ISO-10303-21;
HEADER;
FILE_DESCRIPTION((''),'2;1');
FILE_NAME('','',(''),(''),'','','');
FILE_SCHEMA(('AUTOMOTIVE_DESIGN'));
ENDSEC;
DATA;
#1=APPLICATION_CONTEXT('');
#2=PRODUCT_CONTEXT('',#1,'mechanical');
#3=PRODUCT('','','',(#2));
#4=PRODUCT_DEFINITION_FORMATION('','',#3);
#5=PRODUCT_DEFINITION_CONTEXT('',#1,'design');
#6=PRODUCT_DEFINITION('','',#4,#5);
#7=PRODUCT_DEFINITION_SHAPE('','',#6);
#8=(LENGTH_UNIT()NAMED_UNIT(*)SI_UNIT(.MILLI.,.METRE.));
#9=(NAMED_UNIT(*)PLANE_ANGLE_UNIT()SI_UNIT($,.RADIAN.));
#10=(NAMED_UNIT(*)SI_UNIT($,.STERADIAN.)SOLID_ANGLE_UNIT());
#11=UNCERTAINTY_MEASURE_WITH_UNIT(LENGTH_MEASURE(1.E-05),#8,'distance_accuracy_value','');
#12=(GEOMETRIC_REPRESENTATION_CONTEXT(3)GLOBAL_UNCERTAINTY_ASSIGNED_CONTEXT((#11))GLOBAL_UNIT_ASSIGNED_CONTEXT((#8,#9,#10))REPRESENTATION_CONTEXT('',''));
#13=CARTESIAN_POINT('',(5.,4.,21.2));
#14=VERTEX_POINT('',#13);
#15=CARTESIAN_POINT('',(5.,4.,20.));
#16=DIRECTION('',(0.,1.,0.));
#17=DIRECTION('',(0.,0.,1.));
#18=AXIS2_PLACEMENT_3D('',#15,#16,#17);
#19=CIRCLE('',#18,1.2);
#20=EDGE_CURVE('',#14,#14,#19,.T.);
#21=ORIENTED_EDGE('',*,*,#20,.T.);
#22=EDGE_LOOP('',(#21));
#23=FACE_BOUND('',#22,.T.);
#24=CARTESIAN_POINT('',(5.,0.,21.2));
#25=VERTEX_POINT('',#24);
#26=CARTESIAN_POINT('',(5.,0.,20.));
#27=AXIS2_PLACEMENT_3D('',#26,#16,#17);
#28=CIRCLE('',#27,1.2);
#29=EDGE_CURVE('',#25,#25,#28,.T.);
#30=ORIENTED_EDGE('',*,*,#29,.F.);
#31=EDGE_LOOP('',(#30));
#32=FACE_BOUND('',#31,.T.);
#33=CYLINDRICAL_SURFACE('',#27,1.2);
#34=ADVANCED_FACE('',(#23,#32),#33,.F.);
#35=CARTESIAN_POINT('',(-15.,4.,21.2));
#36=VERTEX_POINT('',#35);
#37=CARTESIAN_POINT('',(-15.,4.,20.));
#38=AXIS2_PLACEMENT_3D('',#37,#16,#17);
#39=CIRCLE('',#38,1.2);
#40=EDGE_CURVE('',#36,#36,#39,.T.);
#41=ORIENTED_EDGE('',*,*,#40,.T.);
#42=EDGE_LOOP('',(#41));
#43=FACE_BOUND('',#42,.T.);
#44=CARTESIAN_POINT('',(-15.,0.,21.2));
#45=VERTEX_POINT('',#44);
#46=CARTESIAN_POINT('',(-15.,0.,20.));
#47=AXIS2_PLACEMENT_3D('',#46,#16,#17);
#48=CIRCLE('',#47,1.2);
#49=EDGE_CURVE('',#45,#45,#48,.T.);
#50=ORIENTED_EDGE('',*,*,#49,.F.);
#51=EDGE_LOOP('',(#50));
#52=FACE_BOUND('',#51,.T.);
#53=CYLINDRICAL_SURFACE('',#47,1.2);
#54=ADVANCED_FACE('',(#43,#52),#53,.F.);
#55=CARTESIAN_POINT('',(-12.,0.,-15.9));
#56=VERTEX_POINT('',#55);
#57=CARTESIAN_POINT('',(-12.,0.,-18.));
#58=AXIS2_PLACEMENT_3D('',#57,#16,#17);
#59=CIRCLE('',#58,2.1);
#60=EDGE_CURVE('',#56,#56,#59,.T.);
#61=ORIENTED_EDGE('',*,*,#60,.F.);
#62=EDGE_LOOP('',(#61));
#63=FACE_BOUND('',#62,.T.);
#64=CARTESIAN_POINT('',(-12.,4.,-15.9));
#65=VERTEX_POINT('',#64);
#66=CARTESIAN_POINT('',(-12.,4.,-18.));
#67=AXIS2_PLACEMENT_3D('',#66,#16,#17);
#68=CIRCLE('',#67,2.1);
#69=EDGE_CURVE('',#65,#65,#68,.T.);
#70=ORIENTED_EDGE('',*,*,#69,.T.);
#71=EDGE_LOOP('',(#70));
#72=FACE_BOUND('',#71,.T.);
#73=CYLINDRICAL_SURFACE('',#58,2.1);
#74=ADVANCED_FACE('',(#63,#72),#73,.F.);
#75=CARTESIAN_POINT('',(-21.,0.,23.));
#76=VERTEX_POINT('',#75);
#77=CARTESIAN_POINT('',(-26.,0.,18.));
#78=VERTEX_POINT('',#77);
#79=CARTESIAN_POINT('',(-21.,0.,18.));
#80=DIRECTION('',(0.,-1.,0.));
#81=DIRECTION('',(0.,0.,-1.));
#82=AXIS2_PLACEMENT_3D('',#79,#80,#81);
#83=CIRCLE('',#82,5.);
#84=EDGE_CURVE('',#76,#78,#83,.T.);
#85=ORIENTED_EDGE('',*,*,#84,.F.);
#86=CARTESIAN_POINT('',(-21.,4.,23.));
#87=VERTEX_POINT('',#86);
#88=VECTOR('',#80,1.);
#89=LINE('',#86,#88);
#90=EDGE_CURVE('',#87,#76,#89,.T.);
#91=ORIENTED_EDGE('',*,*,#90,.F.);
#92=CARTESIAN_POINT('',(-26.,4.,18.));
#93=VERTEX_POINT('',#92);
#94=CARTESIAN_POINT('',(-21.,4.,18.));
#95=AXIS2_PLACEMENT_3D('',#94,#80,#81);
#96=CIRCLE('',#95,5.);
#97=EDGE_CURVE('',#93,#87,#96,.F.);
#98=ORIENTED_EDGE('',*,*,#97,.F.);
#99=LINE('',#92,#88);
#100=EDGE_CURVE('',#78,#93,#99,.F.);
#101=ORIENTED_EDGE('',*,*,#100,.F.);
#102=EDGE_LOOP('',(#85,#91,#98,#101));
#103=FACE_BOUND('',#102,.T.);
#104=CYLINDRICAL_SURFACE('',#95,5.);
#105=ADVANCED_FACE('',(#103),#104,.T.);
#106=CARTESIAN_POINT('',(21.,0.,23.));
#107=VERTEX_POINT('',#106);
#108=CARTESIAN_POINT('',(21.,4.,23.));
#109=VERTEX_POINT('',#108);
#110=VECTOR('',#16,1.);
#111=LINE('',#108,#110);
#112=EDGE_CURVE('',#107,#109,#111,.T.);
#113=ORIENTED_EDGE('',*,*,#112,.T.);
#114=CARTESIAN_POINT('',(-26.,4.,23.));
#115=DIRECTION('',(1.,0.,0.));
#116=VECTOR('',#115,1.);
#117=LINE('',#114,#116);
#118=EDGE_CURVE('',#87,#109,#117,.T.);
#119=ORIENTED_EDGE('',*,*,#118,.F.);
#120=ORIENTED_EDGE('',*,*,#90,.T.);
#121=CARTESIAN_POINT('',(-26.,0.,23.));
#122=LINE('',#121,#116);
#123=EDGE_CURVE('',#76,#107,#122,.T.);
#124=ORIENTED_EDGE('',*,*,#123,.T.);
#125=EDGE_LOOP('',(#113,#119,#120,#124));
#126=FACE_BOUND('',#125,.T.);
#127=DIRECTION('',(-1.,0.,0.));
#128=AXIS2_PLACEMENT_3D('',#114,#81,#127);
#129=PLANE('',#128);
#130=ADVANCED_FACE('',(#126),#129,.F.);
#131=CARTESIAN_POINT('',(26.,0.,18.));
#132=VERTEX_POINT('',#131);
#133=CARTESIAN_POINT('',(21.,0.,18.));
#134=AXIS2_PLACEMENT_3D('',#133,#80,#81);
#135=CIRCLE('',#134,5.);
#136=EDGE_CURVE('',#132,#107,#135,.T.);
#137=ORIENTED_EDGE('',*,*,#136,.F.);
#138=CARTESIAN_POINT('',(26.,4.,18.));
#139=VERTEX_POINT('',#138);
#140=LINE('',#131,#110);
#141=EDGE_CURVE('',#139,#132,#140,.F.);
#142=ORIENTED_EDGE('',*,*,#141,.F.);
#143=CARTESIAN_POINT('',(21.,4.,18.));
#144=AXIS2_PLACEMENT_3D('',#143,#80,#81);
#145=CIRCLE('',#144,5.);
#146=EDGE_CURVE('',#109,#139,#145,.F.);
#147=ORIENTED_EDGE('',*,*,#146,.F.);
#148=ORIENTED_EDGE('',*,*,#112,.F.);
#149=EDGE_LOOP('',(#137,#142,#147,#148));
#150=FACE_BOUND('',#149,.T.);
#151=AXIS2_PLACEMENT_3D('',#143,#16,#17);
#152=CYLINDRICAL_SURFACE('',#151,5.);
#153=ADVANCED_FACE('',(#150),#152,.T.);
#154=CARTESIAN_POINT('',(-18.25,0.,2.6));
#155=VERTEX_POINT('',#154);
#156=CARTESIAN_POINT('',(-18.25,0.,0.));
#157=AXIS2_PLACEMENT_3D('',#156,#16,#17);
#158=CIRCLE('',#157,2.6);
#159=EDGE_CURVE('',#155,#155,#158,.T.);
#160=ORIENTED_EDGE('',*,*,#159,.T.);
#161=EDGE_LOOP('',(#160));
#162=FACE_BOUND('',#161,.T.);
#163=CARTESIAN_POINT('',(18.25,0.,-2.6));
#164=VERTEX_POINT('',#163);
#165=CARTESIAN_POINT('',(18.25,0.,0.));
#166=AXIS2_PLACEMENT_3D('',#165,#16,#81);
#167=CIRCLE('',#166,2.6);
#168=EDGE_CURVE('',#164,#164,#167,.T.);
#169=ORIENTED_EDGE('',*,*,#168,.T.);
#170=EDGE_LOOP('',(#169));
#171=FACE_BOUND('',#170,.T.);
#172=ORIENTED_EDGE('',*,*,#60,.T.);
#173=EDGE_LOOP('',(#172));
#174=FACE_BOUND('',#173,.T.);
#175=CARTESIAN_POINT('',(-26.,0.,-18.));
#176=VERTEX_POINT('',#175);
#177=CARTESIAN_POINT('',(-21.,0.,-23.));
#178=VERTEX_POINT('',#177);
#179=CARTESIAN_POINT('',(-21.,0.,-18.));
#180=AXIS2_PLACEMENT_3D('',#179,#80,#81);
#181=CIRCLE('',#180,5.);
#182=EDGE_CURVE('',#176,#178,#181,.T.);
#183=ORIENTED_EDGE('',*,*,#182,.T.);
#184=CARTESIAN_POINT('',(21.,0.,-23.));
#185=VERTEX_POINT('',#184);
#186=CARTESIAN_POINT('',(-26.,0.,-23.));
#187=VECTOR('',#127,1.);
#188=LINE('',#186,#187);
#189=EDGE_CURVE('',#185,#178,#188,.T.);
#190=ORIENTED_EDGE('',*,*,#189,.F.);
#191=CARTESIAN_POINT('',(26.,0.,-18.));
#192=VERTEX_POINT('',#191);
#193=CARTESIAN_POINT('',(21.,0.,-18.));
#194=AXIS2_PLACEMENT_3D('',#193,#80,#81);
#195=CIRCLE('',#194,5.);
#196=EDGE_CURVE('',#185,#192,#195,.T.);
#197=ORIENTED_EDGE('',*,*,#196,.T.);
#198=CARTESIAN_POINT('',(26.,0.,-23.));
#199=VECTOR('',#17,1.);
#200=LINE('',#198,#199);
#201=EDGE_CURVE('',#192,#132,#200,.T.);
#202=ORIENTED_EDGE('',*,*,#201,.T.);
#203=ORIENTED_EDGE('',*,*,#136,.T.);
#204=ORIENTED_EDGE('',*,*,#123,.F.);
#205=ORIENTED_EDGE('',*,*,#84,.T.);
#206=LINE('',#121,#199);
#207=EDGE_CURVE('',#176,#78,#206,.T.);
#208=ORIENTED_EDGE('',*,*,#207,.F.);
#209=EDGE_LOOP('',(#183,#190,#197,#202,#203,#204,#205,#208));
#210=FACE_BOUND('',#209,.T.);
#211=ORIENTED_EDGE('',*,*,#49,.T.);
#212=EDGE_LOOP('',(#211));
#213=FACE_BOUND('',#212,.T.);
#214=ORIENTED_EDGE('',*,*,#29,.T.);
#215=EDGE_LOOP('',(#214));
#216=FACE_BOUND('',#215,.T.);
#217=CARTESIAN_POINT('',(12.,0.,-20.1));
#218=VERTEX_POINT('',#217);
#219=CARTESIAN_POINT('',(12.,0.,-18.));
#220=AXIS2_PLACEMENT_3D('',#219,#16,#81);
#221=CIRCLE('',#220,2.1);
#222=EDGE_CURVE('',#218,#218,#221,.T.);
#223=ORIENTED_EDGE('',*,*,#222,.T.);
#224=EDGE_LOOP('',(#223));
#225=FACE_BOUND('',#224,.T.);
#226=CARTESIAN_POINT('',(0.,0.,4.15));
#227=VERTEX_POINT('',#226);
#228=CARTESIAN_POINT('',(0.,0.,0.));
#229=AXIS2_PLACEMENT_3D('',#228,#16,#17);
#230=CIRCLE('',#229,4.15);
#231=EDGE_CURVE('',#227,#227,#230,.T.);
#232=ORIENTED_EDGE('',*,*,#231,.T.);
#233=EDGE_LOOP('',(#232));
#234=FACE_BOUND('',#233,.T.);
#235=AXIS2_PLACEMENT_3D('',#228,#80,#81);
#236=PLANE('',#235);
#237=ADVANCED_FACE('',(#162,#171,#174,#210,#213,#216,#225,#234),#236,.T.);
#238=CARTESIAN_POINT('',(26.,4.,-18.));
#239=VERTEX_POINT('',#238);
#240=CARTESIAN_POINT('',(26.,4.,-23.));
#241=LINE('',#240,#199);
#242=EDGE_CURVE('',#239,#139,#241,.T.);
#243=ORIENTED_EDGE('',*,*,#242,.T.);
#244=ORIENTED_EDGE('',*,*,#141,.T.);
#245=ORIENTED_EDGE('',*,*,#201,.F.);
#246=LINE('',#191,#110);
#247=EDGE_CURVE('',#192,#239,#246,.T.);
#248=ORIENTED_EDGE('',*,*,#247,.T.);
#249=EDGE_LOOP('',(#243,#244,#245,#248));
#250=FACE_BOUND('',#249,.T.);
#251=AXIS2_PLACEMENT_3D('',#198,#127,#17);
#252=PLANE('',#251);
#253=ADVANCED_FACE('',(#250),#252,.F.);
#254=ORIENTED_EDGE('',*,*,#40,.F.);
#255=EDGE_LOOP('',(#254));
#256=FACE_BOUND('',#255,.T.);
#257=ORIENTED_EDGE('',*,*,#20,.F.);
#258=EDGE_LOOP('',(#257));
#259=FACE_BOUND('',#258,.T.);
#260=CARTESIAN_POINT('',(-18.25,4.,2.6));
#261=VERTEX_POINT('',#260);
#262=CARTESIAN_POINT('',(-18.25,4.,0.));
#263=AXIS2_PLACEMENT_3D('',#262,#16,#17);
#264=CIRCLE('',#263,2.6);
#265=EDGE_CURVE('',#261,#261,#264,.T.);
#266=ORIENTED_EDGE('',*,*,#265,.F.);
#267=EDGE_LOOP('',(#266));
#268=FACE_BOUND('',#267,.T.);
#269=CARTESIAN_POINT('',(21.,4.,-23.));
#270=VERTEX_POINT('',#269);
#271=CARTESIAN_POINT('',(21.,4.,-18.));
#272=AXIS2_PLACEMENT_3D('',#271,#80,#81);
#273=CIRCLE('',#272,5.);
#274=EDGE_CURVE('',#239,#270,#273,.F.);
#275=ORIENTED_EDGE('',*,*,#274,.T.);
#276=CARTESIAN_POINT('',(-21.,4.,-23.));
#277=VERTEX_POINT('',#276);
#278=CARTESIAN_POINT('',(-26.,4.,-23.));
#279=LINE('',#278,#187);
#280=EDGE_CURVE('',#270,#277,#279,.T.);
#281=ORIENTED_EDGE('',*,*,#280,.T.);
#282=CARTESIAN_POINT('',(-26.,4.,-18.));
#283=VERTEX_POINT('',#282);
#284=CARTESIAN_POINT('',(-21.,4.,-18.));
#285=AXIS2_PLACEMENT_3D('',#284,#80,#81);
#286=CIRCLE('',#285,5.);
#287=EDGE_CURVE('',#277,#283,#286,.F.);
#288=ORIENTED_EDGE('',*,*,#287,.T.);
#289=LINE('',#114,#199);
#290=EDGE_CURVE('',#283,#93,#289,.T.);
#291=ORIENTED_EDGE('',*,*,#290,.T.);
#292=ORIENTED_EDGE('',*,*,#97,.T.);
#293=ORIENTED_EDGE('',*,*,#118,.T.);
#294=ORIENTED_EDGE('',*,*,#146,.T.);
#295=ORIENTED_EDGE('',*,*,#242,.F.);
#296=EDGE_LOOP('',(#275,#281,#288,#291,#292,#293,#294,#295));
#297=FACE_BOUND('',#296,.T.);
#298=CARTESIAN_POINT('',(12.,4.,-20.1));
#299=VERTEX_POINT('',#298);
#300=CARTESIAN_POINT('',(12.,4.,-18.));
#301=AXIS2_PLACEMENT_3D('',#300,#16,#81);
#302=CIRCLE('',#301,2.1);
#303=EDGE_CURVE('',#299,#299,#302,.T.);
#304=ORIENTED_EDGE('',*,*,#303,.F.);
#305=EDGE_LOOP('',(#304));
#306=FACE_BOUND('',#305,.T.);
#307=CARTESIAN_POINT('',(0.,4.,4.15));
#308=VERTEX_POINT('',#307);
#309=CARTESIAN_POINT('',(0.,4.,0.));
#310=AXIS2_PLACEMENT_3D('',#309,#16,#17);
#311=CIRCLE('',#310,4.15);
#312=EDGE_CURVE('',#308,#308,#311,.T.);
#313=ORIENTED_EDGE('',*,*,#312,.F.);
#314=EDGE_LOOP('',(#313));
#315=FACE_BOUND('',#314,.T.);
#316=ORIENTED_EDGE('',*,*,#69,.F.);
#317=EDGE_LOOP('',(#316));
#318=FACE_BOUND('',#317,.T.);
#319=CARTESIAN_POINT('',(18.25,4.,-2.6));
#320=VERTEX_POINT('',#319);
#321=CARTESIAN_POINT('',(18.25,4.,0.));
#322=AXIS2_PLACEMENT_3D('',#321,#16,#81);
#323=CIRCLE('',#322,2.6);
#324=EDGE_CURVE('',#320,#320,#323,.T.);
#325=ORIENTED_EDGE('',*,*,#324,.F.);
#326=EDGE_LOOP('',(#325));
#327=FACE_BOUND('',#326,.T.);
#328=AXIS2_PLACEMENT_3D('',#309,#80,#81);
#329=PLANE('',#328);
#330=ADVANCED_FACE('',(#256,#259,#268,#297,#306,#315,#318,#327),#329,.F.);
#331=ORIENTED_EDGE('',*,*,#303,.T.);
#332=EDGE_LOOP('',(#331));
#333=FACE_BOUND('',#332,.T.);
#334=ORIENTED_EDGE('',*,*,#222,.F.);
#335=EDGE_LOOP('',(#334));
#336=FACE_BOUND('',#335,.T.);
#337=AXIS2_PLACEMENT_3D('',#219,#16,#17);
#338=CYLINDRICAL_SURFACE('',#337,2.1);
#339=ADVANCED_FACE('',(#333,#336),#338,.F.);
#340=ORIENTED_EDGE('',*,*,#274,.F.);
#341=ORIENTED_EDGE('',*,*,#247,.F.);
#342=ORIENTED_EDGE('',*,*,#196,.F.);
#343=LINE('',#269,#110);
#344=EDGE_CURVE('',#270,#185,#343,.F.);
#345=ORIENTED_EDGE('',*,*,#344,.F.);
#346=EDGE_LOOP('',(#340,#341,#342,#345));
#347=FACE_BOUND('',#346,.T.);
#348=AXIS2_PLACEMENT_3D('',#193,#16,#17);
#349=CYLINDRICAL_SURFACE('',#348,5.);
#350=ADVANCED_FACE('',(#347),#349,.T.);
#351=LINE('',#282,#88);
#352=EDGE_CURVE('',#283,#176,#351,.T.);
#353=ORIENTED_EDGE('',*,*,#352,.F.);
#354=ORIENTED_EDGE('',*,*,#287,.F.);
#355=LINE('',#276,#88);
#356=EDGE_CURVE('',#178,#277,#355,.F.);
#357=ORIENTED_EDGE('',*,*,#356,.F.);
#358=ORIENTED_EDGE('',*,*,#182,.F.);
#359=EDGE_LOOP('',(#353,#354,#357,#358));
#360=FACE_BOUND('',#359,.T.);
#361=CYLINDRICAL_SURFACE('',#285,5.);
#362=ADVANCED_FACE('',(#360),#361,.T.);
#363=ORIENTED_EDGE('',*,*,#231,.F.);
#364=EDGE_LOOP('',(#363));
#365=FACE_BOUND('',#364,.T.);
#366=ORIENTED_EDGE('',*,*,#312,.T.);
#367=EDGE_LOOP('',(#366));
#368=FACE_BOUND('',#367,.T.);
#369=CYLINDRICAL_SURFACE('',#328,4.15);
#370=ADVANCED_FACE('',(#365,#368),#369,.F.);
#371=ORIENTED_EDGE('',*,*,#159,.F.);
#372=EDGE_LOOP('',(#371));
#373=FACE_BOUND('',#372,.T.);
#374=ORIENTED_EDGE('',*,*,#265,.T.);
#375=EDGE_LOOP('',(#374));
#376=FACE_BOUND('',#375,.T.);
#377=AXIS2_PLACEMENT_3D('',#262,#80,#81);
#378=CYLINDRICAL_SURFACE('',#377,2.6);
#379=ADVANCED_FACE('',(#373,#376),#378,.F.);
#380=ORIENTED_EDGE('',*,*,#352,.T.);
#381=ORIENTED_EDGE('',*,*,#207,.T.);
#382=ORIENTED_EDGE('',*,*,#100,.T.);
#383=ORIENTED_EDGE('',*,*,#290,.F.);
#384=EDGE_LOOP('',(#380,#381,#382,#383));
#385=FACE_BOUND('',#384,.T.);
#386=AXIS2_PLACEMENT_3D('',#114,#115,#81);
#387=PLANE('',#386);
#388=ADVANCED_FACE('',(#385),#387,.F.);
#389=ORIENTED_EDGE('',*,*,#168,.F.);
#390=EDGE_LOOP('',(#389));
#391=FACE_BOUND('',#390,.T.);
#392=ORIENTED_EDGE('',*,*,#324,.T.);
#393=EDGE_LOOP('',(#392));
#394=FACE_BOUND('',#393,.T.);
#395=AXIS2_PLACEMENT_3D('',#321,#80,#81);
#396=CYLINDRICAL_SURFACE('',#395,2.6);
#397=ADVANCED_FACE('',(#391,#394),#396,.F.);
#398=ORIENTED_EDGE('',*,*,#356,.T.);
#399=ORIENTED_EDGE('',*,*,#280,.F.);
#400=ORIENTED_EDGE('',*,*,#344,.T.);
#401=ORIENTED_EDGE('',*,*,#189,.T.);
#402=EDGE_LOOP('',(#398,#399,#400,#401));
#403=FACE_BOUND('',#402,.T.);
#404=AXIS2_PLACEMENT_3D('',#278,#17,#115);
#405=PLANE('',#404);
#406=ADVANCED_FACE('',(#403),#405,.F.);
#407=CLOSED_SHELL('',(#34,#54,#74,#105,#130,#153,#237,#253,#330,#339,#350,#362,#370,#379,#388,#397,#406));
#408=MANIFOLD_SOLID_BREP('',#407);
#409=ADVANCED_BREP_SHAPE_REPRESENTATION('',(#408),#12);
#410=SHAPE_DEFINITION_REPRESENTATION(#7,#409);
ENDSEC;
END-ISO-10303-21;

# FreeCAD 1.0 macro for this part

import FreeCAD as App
import Part
import Sketcher

V = App.Vector
Q = App.Units.Quantity


def edges_at(feature, points):
    """Names of the edges that pass closest to the given points."""
    edges = feature.Shape.Edges
    near = lambda p: min(range(len(edges)), key=lambda i: edges[i].distToShape(Part.Vertex(*p))[0])
    return sorted({f"Edge{near(p) + 1}" for p in points})


def add_polygon(sketch, points):
    """Adds a closed chain of lines whose ends are joined by coincident constraints."""
    first, n = sketch.GeometryCount, len(points)
    for a, b in zip(points, points[1:] + points[:1]):
        sketch.addGeometry(Part.LineSegment(App.Vector(*a, 0), App.Vector(*b, 0)), False)
    for i in range(n):
        sketch.addConstraint(Sketcher.Constraint("Coincident", first + i, 2, first + (i + 1) % n, 1))

doc = App.newDocument("Part")
body = doc.addObject("PartDesign::Body", "Body")

sketch1 = body.newObject("Sketcher::SketchObject", "Sketch")
sketch1.AttachmentSupport = (doc.getObject("XZ_Plane"), [""])
sketch1.MapMode = "FlatFace"
add_polygon(sketch1, [(-26, -23), (-26, 23), (26, 23), (26, -23)])
sketch1.addGeometry(Part.Circle(V(-18.25, 0, 0), V(0, 0, 1), 2.6), False)
sketch1.addGeometry(Part.Circle(V(0, 0, 0), V(0, 0, 1), 4.15), False)
sketch1.addGeometry(Part.Circle(V(18.25, 0, 0), V(0, 0, 1), 2.6), False)
sketch1.addConstraint([
    Sketcher.Constraint("Vertical", 0),
    Sketcher.Constraint("Horizontal", 1),
    Sketcher.Constraint("Vertical", 2),
    Sketcher.Constraint("Horizontal", 3),
    Sketcher.Constraint("Coincident", 5, 3, -1, 1),
    Sketcher.Constraint("Equal", 4, 6),
    Sketcher.Constraint("Symmetric", 4, 3, 6, 3, -1, 1),
    Sketcher.Constraint("Symmetric", 0, 2, 2, 2, -1, 1),
    Sketcher.Constraint("PointOnObject", 4, 3, -1),
    Sketcher.Constraint("Diameter", 4, Q("5.2 mm")),
    Sketcher.Constraint("Diameter", 5, Q("8.3 mm")),
    Sketcher.Constraint("DistanceX", 1, 1, 1, 2, Q("52 mm")),
    Sketcher.Constraint("DistanceY", 0, 1, 0, 2, Q("46 mm")),
    Sketcher.Constraint("DistanceX", 4, 3, 6, 3, Q("36.5 mm")),
])
pad1 = body.newObject("PartDesign::Pad", "Pad")
pad1.Profile = sketch1
pad1.Length = 4
pad1.Reversed = True

sketch2 = body.newObject("Sketcher::SketchObject", "Sketch001")
sketch2.AttachmentSupport = (doc.getObject("XZ_Plane"), [""])
sketch2.MapMode = "FlatFace"
sketch2.AttachmentOffset = App.Placement(V(0, 0, -4), App.Rotation())
sketch2.addGeometry([
    Part.Circle(V(-12, -18, 0), V(0, 0, 1), 2.1),
    Part.Circle(V(12, -18, 0), V(0, 0, 1), 2.1),
    Part.Circle(V(12, 18, 0), V(0, 0, 1), 2.1),
    Part.Circle(V(-12, 18, 0), V(0, 0, 1), 2.1),
], False)
sketch2.addConstraint([
    Sketcher.Constraint("Equal", 0, 1),
    Sketcher.Constraint("Equal", 1, 2),
    Sketcher.Constraint("Equal", 2, 3),
    Sketcher.Constraint("Symmetric", 0, 3, 2, 3, -1, 1),
    Sketcher.Constraint("Symmetric", 1, 3, 3, 3, -1, 1),
    Sketcher.Constraint("Symmetric", 0, 3, 1, 3, -2),
    Sketcher.Constraint("Diameter", 0, Q("4.2 mm")),
    Sketcher.Constraint("DistanceX", 0, 3, -1, 1, Q("12 mm")),
    Sketcher.Constraint("DistanceY", 0, 3, -1, 1, Q("18 mm")),
])
pocket1 = body.newObject("PartDesign::Pocket", "Pocket")
pocket1.Profile = sketch2
pocket1.Type = "ThroughAll"
pocket1.Reversed = True

sketch3 = body.newObject("Sketcher::SketchObject", "Sketch002")
sketch3.AttachmentSupport = (doc.getObject("XZ_Plane"), [""])
sketch3.MapMode = "FlatFace"
sketch3.AttachmentOffset = App.Placement(V(0, 0, -4), App.Rotation())
sketch3.addGeometry([
    Part.Circle(V(-12, 18, 0), V(0, 0, 1), 2.1),
    Part.Circle(V(12, 18, 0), V(0, 0, 1), 2.1),
], False)
sketch3.addConstraint([
    Sketcher.Constraint("Equal", 0, 1),
    Sketcher.Constraint("Symmetric", 0, 3, 1, 3, -2),
    Sketcher.Constraint("Diameter", 0, Q("4.2 mm")),
    Sketcher.Constraint("DistanceX", 0, 3, -1, 1, Q("12 mm")),
    Sketcher.Constraint("DistanceY", -1, 1, 0, 3, Q("18 mm")),
])
pad2 = body.newObject("PartDesign::Pad", "Pad001")
pad2.Profile = sketch3
pad2.Length = 4

sketch4 = body.newObject("Sketcher::SketchObject", "Sketch003")
sketch4.AttachmentSupport = (doc.getObject("XZ_Plane"), [""])
sketch4.MapMode = "FlatFace"
sketch4.AttachmentOffset = App.Placement(V(0, 0, -4), App.Rotation())
sketch4.addGeometry([
    Part.Circle(V(5, 20, 0), V(0, 0, 1), 1.2),
    Part.Circle(V(-15, 20, 0), V(0, 0, 1), 1.2),
], False)
sketch4.addConstraint([
    Sketcher.Constraint("Equal", 0, 1),
    Sketcher.Constraint("Horizontal", 0, 3, 1, 3),
    Sketcher.Constraint("Diameter", 0, Q("2.4 mm")),
    Sketcher.Constraint("DistanceX", -1, 1, 0, 3, Q("5 mm")),
    Sketcher.Constraint("DistanceY", -1, 1, 0, 3, Q("20 mm")),
    Sketcher.Constraint("DistanceX", 1, 3, -1, 1, Q("15 mm")),
])
pocket2 = body.newObject("PartDesign::Pocket", "Pocket001")
pocket2.Profile = sketch4
pocket2.Type = "ThroughAll"
pocket2.Reversed = True

sketch5 = body.newObject("Sketcher::SketchObject", "Sketch004")
sketch5.AttachmentSupport = (doc.getObject("XZ_Plane"), [""])
sketch5.MapMode = "FlatFace"
add_polygon(sketch5, [(26, 23), (26, -23), (55.384653, -23), (55.384653, 23)])
sketch5.addConstraint([
    Sketcher.Constraint("Vertical", 0),
    Sketcher.Constraint("Horizontal", 1),
    Sketcher.Constraint("Vertical", 2),
    Sketcher.Constraint("Horizontal", 3),
    Sketcher.Constraint("DistanceY", 0, 2, 0, 1, Q("46 mm")),
    Sketcher.Constraint("DistanceX", -1, 1, 0, 2, Q("26 mm")),
    Sketcher.Constraint("DistanceY", 0, 2, -1, 1, Q("23 mm")),
    Sketcher.Constraint("DistanceX", 1, 1, 1, 2, Q("29.384653 mm")),
])
pad3 = body.newObject("PartDesign::Pad", "Pad002")
pad3.Profile = sketch5
pad3.Length = 4
pad3.Reversed = True

sketch6 = body.newObject("Sketcher::SketchObject", "Sketch005")
sketch6.AttachmentSupport = (doc.getObject("XZ_Plane"), [""])
sketch6.MapMode = "FlatFace"
sketch6.AttachmentOffset = App.Placement(V(0, 0, -4), App.Rotation())
add_polygon(sketch6, [(26, -23), (26, 23), (55.384653, 23), (55.384653, -23)])
sketch6.addConstraint([
    Sketcher.Constraint("Vertical", 0),
    Sketcher.Constraint("Horizontal", 1),
    Sketcher.Constraint("Vertical", 2),
    Sketcher.Constraint("Horizontal", 3),
    Sketcher.Constraint("DistanceY", 0, 1, 0, 2, Q("46 mm")),
    Sketcher.Constraint("DistanceX", -1, 1, 0, 2, Q("26 mm")),
    Sketcher.Constraint("DistanceY", -1, 1, 0, 2, Q("23 mm")),
    Sketcher.Constraint("DistanceX", 1, 1, 1, 2, Q("29.384653 mm")),
])
pocket3 = body.newObject("PartDesign::Pocket", "Pocket002")
pocket3.Profile = sketch6
pocket3.Type = "ThroughAll"
pocket3.Reversed = True
doc.recompute()

fillet = body.newObject("PartDesign::Fillet", "Fillet")
fillet.Base = (pocket3, edges_at(pocket3, [
    (-26, 2, 23),
    (-26, 2, -23),
    (26, 2, 23),
    (26, 2, -23),
]))
fillet.Radius = 5

doc.recompute()
